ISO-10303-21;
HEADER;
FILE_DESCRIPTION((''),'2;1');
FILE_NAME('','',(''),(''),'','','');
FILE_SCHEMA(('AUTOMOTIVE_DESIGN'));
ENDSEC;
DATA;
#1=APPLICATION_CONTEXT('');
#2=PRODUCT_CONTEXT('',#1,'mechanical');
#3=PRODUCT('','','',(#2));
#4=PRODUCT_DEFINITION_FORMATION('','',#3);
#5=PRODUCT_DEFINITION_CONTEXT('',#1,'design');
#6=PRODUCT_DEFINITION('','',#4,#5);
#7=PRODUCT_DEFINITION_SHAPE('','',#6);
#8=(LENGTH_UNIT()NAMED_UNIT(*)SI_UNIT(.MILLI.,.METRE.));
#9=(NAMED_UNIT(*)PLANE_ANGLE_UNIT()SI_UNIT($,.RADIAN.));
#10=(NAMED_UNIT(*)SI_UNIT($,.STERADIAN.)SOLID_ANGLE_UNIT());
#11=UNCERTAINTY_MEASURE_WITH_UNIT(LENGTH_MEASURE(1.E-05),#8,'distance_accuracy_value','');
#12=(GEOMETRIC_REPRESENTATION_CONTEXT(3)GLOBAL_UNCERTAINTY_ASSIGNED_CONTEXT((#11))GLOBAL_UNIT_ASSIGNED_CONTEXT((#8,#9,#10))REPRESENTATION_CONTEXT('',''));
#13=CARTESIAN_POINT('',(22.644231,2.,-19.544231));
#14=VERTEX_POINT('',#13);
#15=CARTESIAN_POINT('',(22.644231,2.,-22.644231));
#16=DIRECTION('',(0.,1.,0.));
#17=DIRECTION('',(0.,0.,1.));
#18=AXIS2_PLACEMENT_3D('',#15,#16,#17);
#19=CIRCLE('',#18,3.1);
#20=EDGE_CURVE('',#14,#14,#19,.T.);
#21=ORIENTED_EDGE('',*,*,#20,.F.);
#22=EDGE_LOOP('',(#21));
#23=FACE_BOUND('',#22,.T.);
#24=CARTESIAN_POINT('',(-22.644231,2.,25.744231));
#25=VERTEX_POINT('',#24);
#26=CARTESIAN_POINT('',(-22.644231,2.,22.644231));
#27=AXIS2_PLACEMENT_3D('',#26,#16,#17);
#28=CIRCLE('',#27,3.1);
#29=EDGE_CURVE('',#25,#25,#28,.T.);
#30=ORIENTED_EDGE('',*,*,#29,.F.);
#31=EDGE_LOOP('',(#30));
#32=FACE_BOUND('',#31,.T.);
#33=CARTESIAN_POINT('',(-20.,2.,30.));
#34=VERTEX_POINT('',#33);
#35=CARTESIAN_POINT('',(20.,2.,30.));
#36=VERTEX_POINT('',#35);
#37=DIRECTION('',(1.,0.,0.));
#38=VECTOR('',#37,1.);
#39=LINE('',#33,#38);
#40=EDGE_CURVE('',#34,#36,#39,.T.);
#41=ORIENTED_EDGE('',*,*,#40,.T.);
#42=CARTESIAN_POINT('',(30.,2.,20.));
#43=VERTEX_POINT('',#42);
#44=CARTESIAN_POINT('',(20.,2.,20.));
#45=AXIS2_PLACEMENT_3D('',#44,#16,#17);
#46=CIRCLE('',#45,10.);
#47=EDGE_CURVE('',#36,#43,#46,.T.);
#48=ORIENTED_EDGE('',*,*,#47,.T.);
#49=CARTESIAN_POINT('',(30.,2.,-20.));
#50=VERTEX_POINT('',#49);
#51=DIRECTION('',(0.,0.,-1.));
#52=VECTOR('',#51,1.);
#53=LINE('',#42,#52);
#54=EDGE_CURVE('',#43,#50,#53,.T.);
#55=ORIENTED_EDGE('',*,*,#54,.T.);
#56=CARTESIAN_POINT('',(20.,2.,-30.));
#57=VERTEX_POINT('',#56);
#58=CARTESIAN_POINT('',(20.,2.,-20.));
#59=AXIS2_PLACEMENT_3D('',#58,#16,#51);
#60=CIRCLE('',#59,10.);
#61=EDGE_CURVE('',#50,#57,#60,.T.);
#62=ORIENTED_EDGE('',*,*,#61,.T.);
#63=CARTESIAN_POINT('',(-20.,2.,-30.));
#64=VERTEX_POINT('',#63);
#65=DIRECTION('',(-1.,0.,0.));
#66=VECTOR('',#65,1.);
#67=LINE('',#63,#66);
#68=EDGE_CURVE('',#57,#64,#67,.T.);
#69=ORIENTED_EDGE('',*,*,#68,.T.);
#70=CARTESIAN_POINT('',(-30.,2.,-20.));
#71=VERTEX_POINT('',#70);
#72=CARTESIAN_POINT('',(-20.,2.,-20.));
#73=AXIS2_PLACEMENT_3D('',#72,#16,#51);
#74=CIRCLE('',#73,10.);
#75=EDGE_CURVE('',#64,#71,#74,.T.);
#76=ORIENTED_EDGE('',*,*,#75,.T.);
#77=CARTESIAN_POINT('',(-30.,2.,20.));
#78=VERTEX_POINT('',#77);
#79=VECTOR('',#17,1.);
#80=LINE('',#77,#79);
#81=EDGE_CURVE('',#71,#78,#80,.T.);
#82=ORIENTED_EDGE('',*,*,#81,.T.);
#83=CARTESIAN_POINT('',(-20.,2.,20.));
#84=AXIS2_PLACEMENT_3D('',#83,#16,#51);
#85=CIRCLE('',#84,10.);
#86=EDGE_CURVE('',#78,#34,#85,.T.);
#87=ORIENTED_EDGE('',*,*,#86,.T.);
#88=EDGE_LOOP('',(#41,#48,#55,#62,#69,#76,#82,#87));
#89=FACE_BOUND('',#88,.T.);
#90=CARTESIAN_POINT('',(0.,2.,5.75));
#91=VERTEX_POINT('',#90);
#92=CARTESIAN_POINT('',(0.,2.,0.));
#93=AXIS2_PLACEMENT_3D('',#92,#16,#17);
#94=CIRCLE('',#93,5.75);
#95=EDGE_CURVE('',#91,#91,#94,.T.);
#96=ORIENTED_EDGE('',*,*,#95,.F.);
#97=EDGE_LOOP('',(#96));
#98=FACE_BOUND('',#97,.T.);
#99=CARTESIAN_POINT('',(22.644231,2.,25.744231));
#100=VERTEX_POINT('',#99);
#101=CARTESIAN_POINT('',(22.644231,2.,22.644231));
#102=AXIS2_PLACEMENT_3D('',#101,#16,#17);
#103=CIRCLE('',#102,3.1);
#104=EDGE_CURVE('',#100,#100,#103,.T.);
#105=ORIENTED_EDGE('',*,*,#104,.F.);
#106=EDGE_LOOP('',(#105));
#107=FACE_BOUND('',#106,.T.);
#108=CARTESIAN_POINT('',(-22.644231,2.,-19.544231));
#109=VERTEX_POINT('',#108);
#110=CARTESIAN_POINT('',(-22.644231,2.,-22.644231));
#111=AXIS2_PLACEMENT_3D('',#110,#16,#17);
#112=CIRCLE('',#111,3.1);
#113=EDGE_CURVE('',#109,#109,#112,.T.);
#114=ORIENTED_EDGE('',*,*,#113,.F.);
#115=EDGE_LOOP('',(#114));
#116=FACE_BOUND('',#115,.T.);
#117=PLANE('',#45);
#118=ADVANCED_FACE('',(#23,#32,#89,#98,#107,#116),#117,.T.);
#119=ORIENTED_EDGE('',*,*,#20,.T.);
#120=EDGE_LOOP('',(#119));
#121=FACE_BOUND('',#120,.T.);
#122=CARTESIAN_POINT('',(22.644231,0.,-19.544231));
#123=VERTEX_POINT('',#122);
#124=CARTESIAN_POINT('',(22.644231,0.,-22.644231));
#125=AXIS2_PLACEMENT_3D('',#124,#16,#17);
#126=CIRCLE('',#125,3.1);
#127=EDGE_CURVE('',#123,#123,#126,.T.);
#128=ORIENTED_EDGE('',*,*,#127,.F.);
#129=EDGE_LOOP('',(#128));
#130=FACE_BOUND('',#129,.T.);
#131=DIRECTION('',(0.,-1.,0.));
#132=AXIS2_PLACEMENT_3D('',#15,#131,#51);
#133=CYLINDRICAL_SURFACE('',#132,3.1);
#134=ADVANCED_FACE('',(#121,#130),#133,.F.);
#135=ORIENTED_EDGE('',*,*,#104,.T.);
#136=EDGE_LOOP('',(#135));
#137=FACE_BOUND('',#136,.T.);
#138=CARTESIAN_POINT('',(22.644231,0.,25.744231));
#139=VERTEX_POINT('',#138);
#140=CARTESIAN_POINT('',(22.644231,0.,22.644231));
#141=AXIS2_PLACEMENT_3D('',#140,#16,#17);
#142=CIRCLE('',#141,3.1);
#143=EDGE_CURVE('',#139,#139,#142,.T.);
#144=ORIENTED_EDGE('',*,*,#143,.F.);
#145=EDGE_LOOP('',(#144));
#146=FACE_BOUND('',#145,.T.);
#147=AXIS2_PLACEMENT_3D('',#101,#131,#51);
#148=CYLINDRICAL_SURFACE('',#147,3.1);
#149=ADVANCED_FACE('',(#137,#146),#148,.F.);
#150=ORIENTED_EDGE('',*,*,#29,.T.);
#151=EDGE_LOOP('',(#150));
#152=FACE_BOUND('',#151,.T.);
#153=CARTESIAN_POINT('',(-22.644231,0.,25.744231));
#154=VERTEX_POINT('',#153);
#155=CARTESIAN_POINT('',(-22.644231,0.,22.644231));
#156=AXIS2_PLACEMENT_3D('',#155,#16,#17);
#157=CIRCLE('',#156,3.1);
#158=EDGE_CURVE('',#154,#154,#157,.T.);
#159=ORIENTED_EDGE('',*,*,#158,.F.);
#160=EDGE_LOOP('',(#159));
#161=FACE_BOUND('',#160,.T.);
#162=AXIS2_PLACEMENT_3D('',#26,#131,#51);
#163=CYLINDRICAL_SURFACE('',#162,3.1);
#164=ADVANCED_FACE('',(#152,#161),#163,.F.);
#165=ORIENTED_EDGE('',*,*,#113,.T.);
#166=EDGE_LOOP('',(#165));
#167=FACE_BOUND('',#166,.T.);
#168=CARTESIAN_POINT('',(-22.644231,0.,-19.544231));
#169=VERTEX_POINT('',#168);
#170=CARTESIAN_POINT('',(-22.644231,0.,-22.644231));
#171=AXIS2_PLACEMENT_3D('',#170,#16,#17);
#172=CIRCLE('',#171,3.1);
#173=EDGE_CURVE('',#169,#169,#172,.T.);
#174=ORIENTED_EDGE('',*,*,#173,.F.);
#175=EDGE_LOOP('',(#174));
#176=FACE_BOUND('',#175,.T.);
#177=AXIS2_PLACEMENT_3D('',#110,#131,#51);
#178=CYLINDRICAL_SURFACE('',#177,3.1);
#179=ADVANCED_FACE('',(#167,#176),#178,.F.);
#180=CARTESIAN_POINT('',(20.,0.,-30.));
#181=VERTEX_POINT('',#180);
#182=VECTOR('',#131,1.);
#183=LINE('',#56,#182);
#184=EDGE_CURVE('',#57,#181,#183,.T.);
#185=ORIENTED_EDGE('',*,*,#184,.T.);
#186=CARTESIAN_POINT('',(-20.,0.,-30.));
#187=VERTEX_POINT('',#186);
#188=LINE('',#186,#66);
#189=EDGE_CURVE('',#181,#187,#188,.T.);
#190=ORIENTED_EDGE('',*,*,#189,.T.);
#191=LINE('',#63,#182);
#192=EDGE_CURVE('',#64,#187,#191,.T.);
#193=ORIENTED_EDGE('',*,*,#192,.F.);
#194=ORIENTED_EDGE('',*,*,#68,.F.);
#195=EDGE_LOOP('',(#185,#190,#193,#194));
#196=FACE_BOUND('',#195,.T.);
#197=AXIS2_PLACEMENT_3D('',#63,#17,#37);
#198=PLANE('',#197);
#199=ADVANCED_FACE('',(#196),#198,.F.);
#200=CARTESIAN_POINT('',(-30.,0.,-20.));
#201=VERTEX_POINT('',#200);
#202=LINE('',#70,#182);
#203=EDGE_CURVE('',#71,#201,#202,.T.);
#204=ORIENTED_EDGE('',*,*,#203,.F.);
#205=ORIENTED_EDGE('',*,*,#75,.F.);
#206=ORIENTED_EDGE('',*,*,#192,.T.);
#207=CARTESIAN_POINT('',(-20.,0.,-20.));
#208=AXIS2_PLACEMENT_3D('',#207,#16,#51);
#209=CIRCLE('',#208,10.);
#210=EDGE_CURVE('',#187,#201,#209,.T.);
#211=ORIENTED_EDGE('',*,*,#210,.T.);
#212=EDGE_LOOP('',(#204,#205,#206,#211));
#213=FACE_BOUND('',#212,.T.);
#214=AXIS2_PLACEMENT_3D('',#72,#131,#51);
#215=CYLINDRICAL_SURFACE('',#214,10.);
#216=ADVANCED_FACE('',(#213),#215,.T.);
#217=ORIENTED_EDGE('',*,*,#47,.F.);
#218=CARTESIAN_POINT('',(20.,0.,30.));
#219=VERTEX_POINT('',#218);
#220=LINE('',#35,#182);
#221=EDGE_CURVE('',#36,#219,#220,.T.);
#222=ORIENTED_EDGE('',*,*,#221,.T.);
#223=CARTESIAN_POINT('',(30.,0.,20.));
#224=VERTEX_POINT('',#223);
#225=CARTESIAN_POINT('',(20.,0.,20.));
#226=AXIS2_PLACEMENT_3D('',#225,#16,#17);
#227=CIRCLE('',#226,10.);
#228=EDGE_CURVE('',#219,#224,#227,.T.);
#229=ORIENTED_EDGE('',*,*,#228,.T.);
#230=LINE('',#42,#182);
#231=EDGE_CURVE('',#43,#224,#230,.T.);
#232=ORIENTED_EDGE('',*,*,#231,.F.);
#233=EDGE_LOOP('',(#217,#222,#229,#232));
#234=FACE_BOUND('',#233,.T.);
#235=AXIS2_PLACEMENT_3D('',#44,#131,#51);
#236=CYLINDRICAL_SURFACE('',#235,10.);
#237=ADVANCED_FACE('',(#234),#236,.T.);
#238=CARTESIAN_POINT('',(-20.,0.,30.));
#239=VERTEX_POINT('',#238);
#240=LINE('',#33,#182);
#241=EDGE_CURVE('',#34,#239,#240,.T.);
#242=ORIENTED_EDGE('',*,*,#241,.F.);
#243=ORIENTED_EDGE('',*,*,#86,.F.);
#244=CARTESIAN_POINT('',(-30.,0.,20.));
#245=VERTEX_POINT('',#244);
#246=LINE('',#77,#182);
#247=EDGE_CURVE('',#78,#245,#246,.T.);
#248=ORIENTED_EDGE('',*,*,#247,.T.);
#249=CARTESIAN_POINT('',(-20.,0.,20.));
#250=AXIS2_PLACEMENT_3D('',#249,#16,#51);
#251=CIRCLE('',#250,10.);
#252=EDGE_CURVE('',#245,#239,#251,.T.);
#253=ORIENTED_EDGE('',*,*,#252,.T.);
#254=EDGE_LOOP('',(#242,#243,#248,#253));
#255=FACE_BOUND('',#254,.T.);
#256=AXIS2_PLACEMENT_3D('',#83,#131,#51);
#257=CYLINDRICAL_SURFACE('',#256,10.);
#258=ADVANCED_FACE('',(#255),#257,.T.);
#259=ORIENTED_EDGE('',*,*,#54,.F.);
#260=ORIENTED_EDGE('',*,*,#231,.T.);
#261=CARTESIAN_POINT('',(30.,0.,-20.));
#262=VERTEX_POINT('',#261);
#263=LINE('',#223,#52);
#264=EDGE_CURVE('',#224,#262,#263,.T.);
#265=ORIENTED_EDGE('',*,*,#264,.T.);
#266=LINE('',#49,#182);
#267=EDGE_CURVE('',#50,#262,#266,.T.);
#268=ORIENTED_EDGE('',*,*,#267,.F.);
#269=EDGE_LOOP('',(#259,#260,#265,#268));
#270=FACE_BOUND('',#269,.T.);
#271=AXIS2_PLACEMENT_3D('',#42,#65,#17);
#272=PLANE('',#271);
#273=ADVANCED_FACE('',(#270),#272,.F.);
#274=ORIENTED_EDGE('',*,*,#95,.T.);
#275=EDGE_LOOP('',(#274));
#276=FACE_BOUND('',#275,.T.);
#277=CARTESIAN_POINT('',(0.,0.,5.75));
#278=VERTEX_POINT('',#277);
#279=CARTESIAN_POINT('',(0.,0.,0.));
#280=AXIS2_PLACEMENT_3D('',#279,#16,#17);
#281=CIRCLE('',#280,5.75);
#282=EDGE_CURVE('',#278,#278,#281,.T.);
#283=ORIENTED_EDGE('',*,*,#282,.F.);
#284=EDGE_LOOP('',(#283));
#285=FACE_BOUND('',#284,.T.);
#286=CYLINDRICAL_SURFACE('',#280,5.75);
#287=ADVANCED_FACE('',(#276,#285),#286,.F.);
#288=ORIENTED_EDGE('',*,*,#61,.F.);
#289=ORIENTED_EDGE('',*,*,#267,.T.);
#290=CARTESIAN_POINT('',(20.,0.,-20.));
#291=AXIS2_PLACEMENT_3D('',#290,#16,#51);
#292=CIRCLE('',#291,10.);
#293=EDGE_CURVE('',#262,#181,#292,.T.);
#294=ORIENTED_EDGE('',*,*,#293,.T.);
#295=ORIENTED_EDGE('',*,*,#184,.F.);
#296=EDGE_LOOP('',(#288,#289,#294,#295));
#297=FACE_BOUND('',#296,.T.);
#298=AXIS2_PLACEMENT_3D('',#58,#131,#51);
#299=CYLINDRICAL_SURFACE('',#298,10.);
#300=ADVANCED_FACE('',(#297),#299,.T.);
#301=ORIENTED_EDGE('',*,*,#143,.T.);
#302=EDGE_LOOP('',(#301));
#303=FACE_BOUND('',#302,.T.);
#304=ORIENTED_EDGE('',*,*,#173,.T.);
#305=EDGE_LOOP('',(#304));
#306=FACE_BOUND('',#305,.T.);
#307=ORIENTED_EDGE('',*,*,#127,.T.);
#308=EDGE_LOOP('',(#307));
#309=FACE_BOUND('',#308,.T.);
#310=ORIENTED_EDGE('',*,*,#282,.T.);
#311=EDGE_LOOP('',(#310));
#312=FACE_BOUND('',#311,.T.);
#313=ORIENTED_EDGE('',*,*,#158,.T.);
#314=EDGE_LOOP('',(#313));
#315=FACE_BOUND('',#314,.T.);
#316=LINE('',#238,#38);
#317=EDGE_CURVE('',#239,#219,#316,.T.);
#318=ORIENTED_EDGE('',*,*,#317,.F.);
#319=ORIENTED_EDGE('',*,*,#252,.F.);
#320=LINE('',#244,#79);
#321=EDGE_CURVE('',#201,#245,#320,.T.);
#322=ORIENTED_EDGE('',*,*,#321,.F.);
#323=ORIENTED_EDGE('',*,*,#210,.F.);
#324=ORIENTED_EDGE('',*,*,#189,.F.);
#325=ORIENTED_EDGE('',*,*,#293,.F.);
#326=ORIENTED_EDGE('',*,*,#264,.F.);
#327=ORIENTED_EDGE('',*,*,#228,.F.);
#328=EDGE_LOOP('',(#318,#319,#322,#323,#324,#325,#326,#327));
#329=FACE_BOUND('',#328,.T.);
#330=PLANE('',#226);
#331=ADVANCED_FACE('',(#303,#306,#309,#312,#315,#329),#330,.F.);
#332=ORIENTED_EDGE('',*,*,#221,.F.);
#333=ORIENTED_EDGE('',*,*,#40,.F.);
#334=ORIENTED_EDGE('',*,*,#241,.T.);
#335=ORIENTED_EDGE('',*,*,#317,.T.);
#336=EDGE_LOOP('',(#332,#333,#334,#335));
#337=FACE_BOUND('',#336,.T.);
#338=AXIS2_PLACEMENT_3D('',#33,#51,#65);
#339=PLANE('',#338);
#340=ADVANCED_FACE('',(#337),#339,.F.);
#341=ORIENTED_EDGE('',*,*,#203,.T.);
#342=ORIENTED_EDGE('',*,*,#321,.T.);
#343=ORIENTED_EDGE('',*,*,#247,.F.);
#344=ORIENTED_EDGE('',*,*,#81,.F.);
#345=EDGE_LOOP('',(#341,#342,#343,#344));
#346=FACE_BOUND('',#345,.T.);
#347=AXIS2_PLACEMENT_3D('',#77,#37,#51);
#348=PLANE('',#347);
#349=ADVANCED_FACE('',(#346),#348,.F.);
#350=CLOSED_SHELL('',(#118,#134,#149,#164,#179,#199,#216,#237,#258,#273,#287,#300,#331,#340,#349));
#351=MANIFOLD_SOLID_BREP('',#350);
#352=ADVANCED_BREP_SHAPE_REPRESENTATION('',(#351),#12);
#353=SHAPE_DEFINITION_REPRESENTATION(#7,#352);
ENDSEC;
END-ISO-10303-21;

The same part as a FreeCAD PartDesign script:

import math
import FreeCAD as App
import Part
import Sketcher

V = App.Vector
Q = App.Units.Quantity

doc = App.newDocument("Part")
body = doc.addObject("PartDesign::Body", "Body")

sketch1 = body.newObject("Sketcher::SketchObject", "Sketch")
sketch1.AttachmentSupport = (doc.getObject("XZ_Plane"), [""])
sketch1.MapMode = "FlatFace"
sketch1.addGeometry([
    Part.LineSegment(V(-20, 30, 0), V(20, 30, 0)),
    Part.ArcOfCircle(Part.Circle(V(20, 20, 0), V(0, 0, 1), 10), math.radians(0), math.radians(90)),
    Part.LineSegment(V(30, 20, 0), V(30, -20, 0)),
    Part.ArcOfCircle(Part.Circle(V(20, -20, 0), V(0, 0, 1), 10), math.radians(-90), math.radians(0)),
    Part.LineSegment(V(20, -30, 0), V(-20, -30, 0)),
    Part.ArcOfCircle(Part.Circle(V(-20, -20, 0), V(0, 0, 1), 10), math.radians(180), math.radians(270)),
    Part.LineSegment(V(-30, -20, 0), V(-30, 20, 0)),
    Part.ArcOfCircle(Part.Circle(V(-20, 20, 0), V(0, 0, 1), 10), math.radians(90), math.radians(180)),
    Part.Circle(V(-22.6, 22.6, 0), V(0, 0, 1), 3.1),
    Part.Circle(V(22.6, 22.6, 0), V(0, 0, 1), 3.1),
    Part.Circle(V(-22.6, -22.6, 0), V(0, 0, 1), 3.1),
    Part.Circle(V(22.6, -22.6, 0), V(0, 0, 1), 3.1),
], False)
sketch1.addConstraint([
    Sketcher.Constraint("Tangent", 0, 2, 1, 2),
    Sketcher.Constraint("Tangent", 1, 1, 2, 1),
    Sketcher.Constraint("Tangent", 2, 2, 3, 2),
    Sketcher.Constraint("Tangent", 3, 1, 4, 1),
    Sketcher.Constraint("Tangent", 4, 2, 5, 2),
    Sketcher.Constraint("Tangent", 5, 1, 6, 1),
    Sketcher.Constraint("Tangent", 6, 2, 7, 2),
    Sketcher.Constraint("Tangent", 7, 1, 0, 1),
    Sketcher.Constraint("Horizontal", 0),
    Sketcher.Constraint("Vertical", 2),
    Sketcher.Constraint("Horizontal", 4),
    Sketcher.Constraint("Vertical", 6),
    Sketcher.Constraint("Equal", 1, 3),
    Sketcher.Constraint("Equal", 3, 5),
    Sketcher.Constraint("Equal", 5, 7),
    Sketcher.Constraint("Equal", 8, 9),
    Sketcher.Constraint("Equal", 9, 10),
    Sketcher.Constraint("Equal", 10, 11),
    Sketcher.Constraint("Symmetric", 1, 3, 5, 3, -1, 1),
    Sketcher.Constraint("Symmetric", 9, 3, 10, 3, -1, 1),
    Sketcher.Constraint("Symmetric", 8, 3, 11, 3, -1, 1),
    Sketcher.Constraint("Symmetric", 8, 3, 9, 3, -2),
    Sketcher.Constraint("Equal", 4, 2),
    Sketcher.Constraint("Radius", 1, Q("10 mm")),
    Sketcher.Constraint("Diameter", 8, Q("6.2 mm")),
    Sketcher.Constraint("DistanceX", 0, 1, 0, 2, Q("40 mm")),
    Sketcher.Constraint("DistanceX", 8, 3, -1, 1, Q("22.644231 mm")),
    Sketcher.Constraint("DistanceY", -1, 1, 8, 3, Q("22.644231 mm")),
])
pad1 = body.newObject("PartDesign::Pad", "Pad")
pad1.Profile = sketch1
pad1.Length = 2
pad1.Reversed = True

sketch2 = body.newObject("Sketcher::SketchObject", "Sketch001")
sketch2.AttachmentSupport = (doc.getObject("XZ_Plane"), [""])
sketch2.MapMode = "FlatFace"
sketch2.AttachmentOffset = App.Placement(V(0, 0, -2), App.Rotation())
sketch2.addGeometry(Part.Circle(V(0, 0, 0), V(0, 0, 1), 6), False)
sketch2.addConstraint([
    Sketcher.Constraint("Coincident", 0, 3, -1, 1),
    Sketcher.Constraint("Diameter", 0, Q("11.5 mm")),
])
pocket1 = body.newObject("PartDesign::Pocket", "Pocket")
pocket1.Profile = sketch2
pocket1.Type = "ThroughAll"
pocket1.Reversed = True

doc.recompute()
